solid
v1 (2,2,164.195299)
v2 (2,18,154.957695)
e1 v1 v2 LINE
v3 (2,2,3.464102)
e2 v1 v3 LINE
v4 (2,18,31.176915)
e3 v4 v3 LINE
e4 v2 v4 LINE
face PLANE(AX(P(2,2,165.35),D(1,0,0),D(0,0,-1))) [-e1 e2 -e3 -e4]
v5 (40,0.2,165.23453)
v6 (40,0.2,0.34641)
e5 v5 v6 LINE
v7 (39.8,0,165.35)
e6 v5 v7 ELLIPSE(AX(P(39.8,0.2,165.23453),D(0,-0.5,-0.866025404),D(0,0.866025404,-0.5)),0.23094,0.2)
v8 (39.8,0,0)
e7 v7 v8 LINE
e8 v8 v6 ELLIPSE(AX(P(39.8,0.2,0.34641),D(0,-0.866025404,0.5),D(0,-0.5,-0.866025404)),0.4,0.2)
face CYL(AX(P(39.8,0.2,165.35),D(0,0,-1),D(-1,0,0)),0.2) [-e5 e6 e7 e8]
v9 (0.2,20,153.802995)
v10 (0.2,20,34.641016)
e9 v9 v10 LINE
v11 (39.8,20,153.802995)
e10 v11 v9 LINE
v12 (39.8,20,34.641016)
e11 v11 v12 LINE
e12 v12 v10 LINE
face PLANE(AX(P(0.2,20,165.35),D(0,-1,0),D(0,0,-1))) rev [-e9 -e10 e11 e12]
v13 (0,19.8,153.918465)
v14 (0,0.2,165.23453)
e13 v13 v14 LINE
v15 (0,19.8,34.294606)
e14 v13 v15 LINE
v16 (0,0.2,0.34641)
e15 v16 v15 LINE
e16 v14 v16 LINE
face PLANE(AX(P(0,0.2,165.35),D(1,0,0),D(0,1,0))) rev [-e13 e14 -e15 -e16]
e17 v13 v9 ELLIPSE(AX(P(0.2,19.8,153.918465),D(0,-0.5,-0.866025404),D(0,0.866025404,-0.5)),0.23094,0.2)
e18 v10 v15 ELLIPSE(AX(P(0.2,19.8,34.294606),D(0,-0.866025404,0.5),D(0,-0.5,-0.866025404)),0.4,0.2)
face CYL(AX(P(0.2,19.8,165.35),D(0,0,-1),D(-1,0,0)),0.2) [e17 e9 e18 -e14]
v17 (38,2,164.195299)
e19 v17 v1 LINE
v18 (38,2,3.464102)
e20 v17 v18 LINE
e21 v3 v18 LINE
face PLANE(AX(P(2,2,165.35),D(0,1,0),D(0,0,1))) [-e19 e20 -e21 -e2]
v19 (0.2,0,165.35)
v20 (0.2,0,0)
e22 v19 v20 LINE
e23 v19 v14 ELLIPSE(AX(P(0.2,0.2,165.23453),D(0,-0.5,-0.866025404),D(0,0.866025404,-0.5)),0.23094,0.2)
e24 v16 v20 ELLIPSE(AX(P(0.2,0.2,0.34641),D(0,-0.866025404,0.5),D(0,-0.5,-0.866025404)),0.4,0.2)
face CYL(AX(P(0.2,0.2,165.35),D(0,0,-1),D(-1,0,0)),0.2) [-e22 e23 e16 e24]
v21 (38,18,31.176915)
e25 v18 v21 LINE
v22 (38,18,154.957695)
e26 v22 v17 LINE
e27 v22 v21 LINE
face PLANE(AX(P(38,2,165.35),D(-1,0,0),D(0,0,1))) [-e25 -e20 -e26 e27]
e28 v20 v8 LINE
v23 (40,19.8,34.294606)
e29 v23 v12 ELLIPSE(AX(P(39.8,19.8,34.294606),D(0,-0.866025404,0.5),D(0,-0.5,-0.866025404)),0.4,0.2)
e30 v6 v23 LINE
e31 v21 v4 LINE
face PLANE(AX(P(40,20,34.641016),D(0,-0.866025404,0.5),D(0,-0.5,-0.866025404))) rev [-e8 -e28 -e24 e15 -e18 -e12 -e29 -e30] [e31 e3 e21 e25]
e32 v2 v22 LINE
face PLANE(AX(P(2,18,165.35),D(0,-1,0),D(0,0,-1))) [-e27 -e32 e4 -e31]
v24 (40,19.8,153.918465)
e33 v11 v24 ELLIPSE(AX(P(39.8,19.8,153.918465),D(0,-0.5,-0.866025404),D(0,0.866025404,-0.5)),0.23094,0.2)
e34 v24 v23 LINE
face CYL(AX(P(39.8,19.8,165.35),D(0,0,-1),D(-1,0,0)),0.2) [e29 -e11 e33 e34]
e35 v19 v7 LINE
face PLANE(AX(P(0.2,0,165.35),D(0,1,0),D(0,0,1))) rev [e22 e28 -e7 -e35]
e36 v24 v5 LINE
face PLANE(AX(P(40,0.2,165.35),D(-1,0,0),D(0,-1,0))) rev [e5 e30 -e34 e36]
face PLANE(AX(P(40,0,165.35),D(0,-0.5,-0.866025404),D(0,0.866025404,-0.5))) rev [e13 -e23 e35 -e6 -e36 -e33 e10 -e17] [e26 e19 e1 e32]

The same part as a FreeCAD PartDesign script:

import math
import FreeCAD as App
import Part
import Sketcher

V = App.Vector
Q = App.Units.Quantity

doc = App.newDocument("Part")
params = doc.addObject("Spreadsheet::Sheet", "Params")
for row, (alias, value) in enumerate([
    ("sketch1_radius", "0.2 mm"),
    ("sketch1_width", "36 mm"),
    ("sketch1_height", "16 mm"),
    ("sketch1_width2", "39.6 mm"),
    ("sketch1_height2", "19.6 mm"),
    ("pad1_length", "165.35 mm"),
    ("sketch2_width", "20 mm"),
], start=1):
    params.set(f"A{row}", alias)
    params.set(f"B{row}", "=" + value)
    params.setAlias(f"B{row}", alias)

body = doc.addObject("PartDesign::Body", "Body")

# Sketch on XY plane
sketch1 = body.newObject("Sketcher::SketchObject", "Sketch")
sketch1.AttachmentSupport = (doc.getObject("XY_Plane"), [""])
sketch1.MapMode = "FlatFace"
sketch1.addGeometry([
    Part.LineSegment(V(0.2, 0, 0), V(39.8, 0, 0)),  # 0
    Part.ArcOfCircle(Part.Circle(V(39.8, 0.2, 0), V(0, 0, 1), 0.2), math.radians(-90), math.radians(0)),  # 1
    Part.LineSegment(V(40, 0.2, 0), V(40, 19.8, 0)),  # 2
    Part.ArcOfCircle(Part.Circle(V(39.8, 19.8, 0), V(0, 0, 1), 0.2), math.radians(0), math.radians(90)),  # 3
    Part.LineSegment(V(39.8, 20, 0), V(0.2, 20, 0)),  # 4
    Part.ArcOfCircle(Part.Circle(V(0.2, 19.8, 0), V(0, 0, 1), 0.2), math.radians(90), math.radians(180)),  # 5
    Part.LineSegment(V(0, 19.8, 0), V(0, 0.2, 0)),  # 6
    Part.ArcOfCircle(Part.Circle(V(0.2, 0.2, 0), V(0, 0, 1), 0.2), math.radians(-180), math.radians(-90)),  # 7
    Part.LineSegment(V(38, 2, 0), V(2, 2, 0)),  # 8
    Part.LineSegment(V(2, 2, 0), V(2, 18, 0)),  # 9
    Part.LineSegment(V(2, 18, 0), V(38, 18, 0)),  # 10
    Part.LineSegment(V(38, 18, 0), V(38, 2, 0)),  # 11
], False)
sketch1.addConstraint([
    Sketcher.Constraint("Tangent", 0, 2, 1, 1),
    Sketcher.Constraint("Tangent", 1, 2, 2, 1),
    Sketcher.Constraint("Tangent", 2, 2, 3, 1),
    Sketcher.Constraint("Tangent", 3, 2, 4, 1),
    Sketcher.Constraint("Tangent", 4, 2, 5, 1),
    Sketcher.Constraint("Tangent", 5, 2, 6, 1),
    Sketcher.Constraint("Tangent", 6, 2, 7, 1),
    Sketcher.Constraint("Tangent", 7, 2, 0, 1),
    Sketcher.Constraint("Coincident", 8, 2, 9, 1),
    Sketcher.Constraint("Coincident", 9, 2, 10, 1),
    Sketcher.Constraint("Coincident", 10, 2, 11, 1),
    Sketcher.Constraint("Coincident", 11, 2, 8, 1),
    Sketcher.Constraint("Horizontal", 0),
    Sketcher.Constraint("Vertical", 2),
    Sketcher.Constraint("Horizontal", 4),
    Sketcher.Constraint("Vertical", 6),
    Sketcher.Constraint("Horizontal", 8),
    Sketcher.Constraint("Vertical", 9),
    Sketcher.Constraint("Horizontal", 10),
    Sketcher.Constraint("Vertical", 11),
    Sketcher.Constraint("Equal", 1, 3),
    Sketcher.Constraint("Equal", 3, 5),
    Sketcher.Constraint("Equal", 5, 7),
    Sketcher.Constraint("PointOnObject", 0, 2, -1),
    Sketcher.Constraint("PointOnObject", 5, 2, -2),
    Sketcher.Constraint("Radius", 1, 0.2),
    Sketcher.Constraint("DistanceX", 8, 2, 8, 1, 36.0),
    Sketcher.Constraint("DistanceY", 9, 1, 9, 2, 16.0),
    Sketcher.Constraint("DistanceX", 0, 1, 0, 2, 39.6),
    Sketcher.Constraint("DistanceY", 2, 1, 2, 2, 19.6),
    Sketcher.Constraint("DistanceX", -1, 1, 8, 2, 2.0),
    Sketcher.Constraint("DistanceY", -1, 1, 8, 2, 2.0),
])
sketch1.setExpression("Constraints[25]", "Params.sketch1_radius")
sketch1.setExpression("Constraints[26]", "Params.sketch1_width")
sketch1.setExpression("Constraints[27]", "Params.sketch1_height")
sketch1.setExpression("Constraints[28]", "Params.sketch1_width2")
sketch1.setExpression("Constraints[29]", "Params.sketch1_height2")
pad1 = body.newObject("PartDesign::Pad", "Pad")
pad1.Profile = sketch1
pad1.setExpression("Length", "Params.pad1_length")

# Sketch on YZ plane
sketch2 = body.newObject("Sketcher::SketchObject", "Sketch001")
sketch2.AttachmentSupport = (doc.getObject("YZ_Plane"), [""])
sketch2.MapMode = "FlatFace"
sketch2.addGeometry([
    Part.LineSegment(V(20, 35, 0), V(20, 0, 0)),  # 0
    Part.LineSegment(V(20, 0, 0), V(0, 0, 0)),  # 1
    Part.LineSegment(V(0, 0, 0), V(20, 35, 0)),  # 2
    Part.LineSegment(V(20, 154, 0), V(0, 165, 0)),  # 3
    Part.LineSegment(V(0, 165, 0), V(20, 165, 0)),  # 4
    Part.LineSegment(V(20, 165, 0), V(20, 154, 0)),  # 5
], False)
sketch2.addConstraint([
    Sketcher.Constraint("Coincident", 0, 2, 1, 1),
    Sketcher.Constraint("Coincident", 1, 2, 2, 1),
    Sketcher.Constraint("Coincident", 2, 2, 0, 1),
    Sketcher.Constraint("Coincident", 3, 2, 4, 1),
    Sketcher.Constraint("Coincident", 4, 2, 5, 1),
    Sketcher.Constraint("Coincident", 5, 2, 3, 1),
    Sketcher.Constraint("Vertical", 0),
    Sketcher.Constraint("Horizontal", 1),
    Sketcher.Constraint("Horizontal", 4),
    Sketcher.Constraint("Vertical", 5),
    Sketcher.Constraint("Coincident", 1, 2, -1, 1),
    Sketcher.Constraint("PointOnObject", 3, 2, -2),
    Sketcher.Constraint("Perpendicular", 2, 3),
    Sketcher.Constraint("Vertical", 2, 2, 4, 2),
    Sketcher.Constraint("DistanceX", 1, 2, 1, 1, 20.0),
    Sketcher.Constraint("Angle", 2, Q("60 deg")),
    Sketcher.Constraint("DistanceY", -1, 1, 3, 2, 165.35),
])
sketch2.setExpression("Constraints[14]", "Params.sketch2_width")
pocket1 = body.newObject("PartDesign::Pocket", "Pocket")
pocket1.Profile = sketch2
pocket1.Type = "ThroughAll"
pocket1.Reversed = True

doc.recompute()
